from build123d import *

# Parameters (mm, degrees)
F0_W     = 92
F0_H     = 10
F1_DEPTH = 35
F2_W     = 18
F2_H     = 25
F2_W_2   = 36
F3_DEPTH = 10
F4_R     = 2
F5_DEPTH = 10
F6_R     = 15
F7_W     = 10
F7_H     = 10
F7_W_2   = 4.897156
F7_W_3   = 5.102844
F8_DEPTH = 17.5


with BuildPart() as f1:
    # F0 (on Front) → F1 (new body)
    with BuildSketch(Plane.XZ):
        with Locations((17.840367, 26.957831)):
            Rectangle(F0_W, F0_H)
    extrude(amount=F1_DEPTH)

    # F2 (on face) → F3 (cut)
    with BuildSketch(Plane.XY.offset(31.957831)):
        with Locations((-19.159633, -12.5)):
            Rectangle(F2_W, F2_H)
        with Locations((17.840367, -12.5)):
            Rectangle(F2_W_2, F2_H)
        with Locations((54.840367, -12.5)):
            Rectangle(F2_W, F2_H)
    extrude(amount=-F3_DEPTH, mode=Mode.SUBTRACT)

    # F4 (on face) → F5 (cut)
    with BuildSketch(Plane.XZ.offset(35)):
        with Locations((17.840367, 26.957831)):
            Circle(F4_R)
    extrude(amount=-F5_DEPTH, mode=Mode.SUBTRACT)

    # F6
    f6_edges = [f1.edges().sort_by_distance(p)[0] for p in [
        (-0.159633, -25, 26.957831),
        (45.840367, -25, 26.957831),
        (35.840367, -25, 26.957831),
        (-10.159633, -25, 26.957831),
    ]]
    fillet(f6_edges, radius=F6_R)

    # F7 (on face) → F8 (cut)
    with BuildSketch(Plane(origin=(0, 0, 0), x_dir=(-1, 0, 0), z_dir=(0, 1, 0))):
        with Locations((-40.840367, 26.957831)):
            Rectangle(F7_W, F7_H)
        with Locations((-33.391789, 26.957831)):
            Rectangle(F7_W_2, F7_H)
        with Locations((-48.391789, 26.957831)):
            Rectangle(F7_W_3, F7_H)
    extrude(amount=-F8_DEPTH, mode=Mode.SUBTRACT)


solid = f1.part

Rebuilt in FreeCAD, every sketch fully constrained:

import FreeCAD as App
import Part
import Sketcher
Q = App.Units.Quantity


def edges_at(feature, points):
    """Names of the edges that pass closest to the given points."""
    edges = feature.Shape.Edges
    near = lambda p: min(range(len(edges)), key=lambda i: edges[i].distToShape(Part.Vertex(*p))[0])
    return sorted({f"Edge{near(p) + 1}" for p in points})

doc = App.newDocument("Part")
body = doc.addObject("PartDesign::Body", "Body")

sketch1 = body.newObject("Sketcher::SketchObject", "Sketch")
sketch1.AttachmentSupport = (doc.getObject("XZ_Plane"), [""])
sketch1.MapMode = "FlatFace"
sketch1.addGeometry(Part.LineSegment(App.Vector(-28, 32, 0), App.Vector(-28, 22, 0)), False)
sketch1.addGeometry(Part.LineSegment(App.Vector(-28, 22, 0), App.Vector(64, 22, 0)), False)
sketch1.addGeometry(Part.LineSegment(App.Vector(64, 22, 0), App.Vector(64, 32, 0)), False)
sketch1.addGeometry(Part.LineSegment(App.Vector(64, 32, 0), App.Vector(-28, 32, 0)), False)
sketch1.addConstraint(Sketcher.Constraint("Coincident", 0, 2, 1, 1))
sketch1.addConstraint(Sketcher.Constraint("Coincident", 1, 2, 2, 1))
sketch1.addConstraint(Sketcher.Constraint("Coincident", 2, 2, 3, 1))
sketch1.addConstraint(Sketcher.Constraint("Coincident", 3, 2, 0, 1))
sketch1.addConstraint(Sketcher.Constraint("Vertical", 0))
sketch1.addConstraint(Sketcher.Constraint("Horizontal", 1))
sketch1.addConstraint(Sketcher.Constraint("Vertical", 2))
sketch1.addConstraint(Sketcher.Constraint("Horizontal", 3))
sketch1.addConstraint(Sketcher.Constraint("DistanceX", 1, 1, 1, 2, Q("92 mm")))
sketch1.addConstraint(Sketcher.Constraint("DistanceY", 0, 2, 0, 1, Q("10 mm")))
sketch1.addConstraint(Sketcher.Constraint("DistanceY", -1, 1, 0, 2, Q("21.957831 mm")))
sketch1.addConstraint(Sketcher.Constraint("DistanceX", 0, 2, -1, 1, Q("28.159633 mm")))
pad1 = body.newObject("PartDesign::Pad", "Pad")
pad1.Profile = sketch1
pad1.Length = 35

sketch2 = body.newObject("Sketcher::SketchObject", "Sketch001")
sketch2.AttachmentSupport = (doc.getObject("XY_Plane"), [""])
sketch2.MapMode = "FlatFace"
sketch2.AttachmentOffset = App.Placement(App.Vector(0, 0, 31.957831), App.Rotation())
sketch2.addGeometry(Part.LineSegment(App.Vector(-28, 0, 0), App.Vector(-28, -25, 0)), False)
sketch2.addGeometry(Part.LineSegment(App.Vector(-28, -25, 0), App.Vector(-10, -25, 0)), False)
sketch2.addGeometry(Part.LineSegment(App.Vector(-10, -25, 0), App.Vector(-10, 0, 0)), False)
sketch2.addGeometry(Part.LineSegment(App.Vector(-10, 0, 0), App.Vector(-28, 0, 0)), False)
sketch2.addGeometry(Part.LineSegment(App.Vector(0, 0, 0), App.Vector(0, -25, 0)), False)
sketch2.addGeometry(Part.LineSegment(App.Vector(0, -25, 0), App.Vector(36, -25, 0)), False)
sketch2.addGeometry(Part.LineSegment(App.Vector(36, -25, 0), App.Vector(36, 0, 0)), False)
sketch2.addGeometry(Part.LineSegment(App.Vector(36, 0, 0), App.Vector(0, 0, 0)), False)
sketch2.addGeometry(Part.LineSegment(App.Vector(46, 0, 0), App.Vector(46, -25, 0)), False)
sketch2.addGeometry(Part.LineSegment(App.Vector(46, -25, 0), App.Vector(64, -25, 0)), False)
sketch2.addGeometry(Part.LineSegment(App.Vector(64, -25, 0), App.Vector(64, 0, 0)), False)
sketch2.addGeometry(Part.LineSegment(App.Vector(64, 0, 0), App.Vector(46, 0, 0)), False)
sketch2.addConstraint(Sketcher.Constraint("Coincident", 0, 2, 1, 1))
sketch2.addConstraint(Sketcher.Constraint("Coincident", 1, 2, 2, 1))
sketch2.addConstraint(Sketcher.Constraint("Coincident", 2, 2, 3, 1))
sketch2.addConstraint(Sketcher.Constraint("Coincident", 3, 2, 0, 1))
sketch2.addConstraint(Sketcher.Constraint("Coincident", 4, 2, 5, 1))
sketch2.addConstraint(Sketcher.Constraint("Coincident", 5, 2, 6, 1))
sketch2.addConstraint(Sketcher.Constraint("Coincident", 6, 2, 7, 1))
sketch2.addConstraint(Sketcher.Constraint("Coincident", 7, 2, 4, 1))
sketch2.addConstraint(Sketcher.Constraint("Coincident", 8, 2, 9, 1))
sketch2.addConstraint(Sketcher.Constraint("Coincident", 9, 2, 10, 1))
sketch2.addConstraint(Sketcher.Constraint("Coincident", 10, 2, 11, 1))
sketch2.addConstraint(Sketcher.Constraint("Coincident", 11, 2, 8, 1))
sketch2.addConstraint(Sketcher.Constraint("Vertical", 0))
sketch2.addConstraint(Sketcher.Constraint("Horizontal", 1))
sketch2.addConstraint(Sketcher.Constraint("Vertical", 2))
sketch2.addConstraint(Sketcher.Constraint("Horizontal", 3))
sketch2.addConstraint(Sketcher.Constraint("Vertical", 4))
sketch2.addConstraint(Sketcher.Constraint("Horizontal", 5))
sketch2.addConstraint(Sketcher.Constraint("Vertical", 6))
sketch2.addConstraint(Sketcher.Constraint("Horizontal", 7))
sketch2.addConstraint(Sketcher.Constraint("Vertical", 8))
sketch2.addConstraint(Sketcher.Constraint("Horizontal", 9))
sketch2.addConstraint(Sketcher.Constraint("Vertical", 10))
sketch2.addConstraint(Sketcher.Constraint("Horizontal", 11))
sketch2.addConstraint(Sketcher.Constraint("PointOnObject", 2, 2, -1))
sketch2.addConstraint(Sketcher.Constraint("PointOnObject", 6, 2, -1))
sketch2.addConstraint(Sketcher.Constraint("PointOnObject", 10, 2, -1))
sketch2.addConstraint(Sketcher.Constraint("Horizontal", 1, 2, 4, 2))
sketch2.addConstraint(Sketcher.Constraint("Horizontal", 5, 2, 8, 2))
sketch2.addConstraint(Sketcher.Constraint("Equal", 3, 9))
sketch2.addConstraint(Sketcher.Constraint("DistanceX", 1, 1, 1, 2, Q("18 mm")))
sketch2.addConstraint(Sketcher.Constraint("DistanceX", 5, 1, 5, 2, Q("36 mm")))
sketch2.addConstraint(Sketcher.Constraint("DistanceY", 0, 2, 0, 1, Q("25 mm")))
sketch2.addConstraint(Sketcher.Constraint("DistanceX", 1, 2, 4, 2, Q("10 mm")))
sketch2.addConstraint(Sketcher.Constraint("DistanceX", 5, 2, 8, 2, Q("10 mm")))
sketch2.addConstraint(Sketcher.Constraint("DistanceX", 0, 2, -1, 1, Q("28.159633 mm")))
pocket1 = body.newObject("PartDesign::Pocket", "Pocket")
pocket1.Profile = sketch2
pocket1.Length = 10

sketch3 = body.newObject("Sketcher::SketchObject", "Sketch002")
sketch3.AttachmentSupport = (doc.getObject("XZ_Plane"), [""])
sketch3.MapMode = "FlatFace"
sketch3.AttachmentOffset = App.Placement(App.Vector(0, 0, 35), App.Rotation())
sketch3.addGeometry(Part.Circle(App.Vector(17.8, 27, 0), App.Vector(0, 0, 1), 2), False)
sketch3.addConstraint(Sketcher.Constraint("Diameter", 0, Q("4 mm")))
sketch3.addConstraint(Sketcher.Constraint("DistanceY", -1, 1, 0, 3, Q("26.957831 mm")))
sketch3.addConstraint(Sketcher.Constraint("DistanceX", -1, 1, 0, 3, Q("17.840367 mm")))
pocket2 = body.newObject("PartDesign::Pocket", "Pocket001")
pocket2.Profile = sketch3
pocket2.Length = 10
doc.recompute()

fillet = body.newObject("PartDesign::Fillet", "Fillet")
fillet.Base = (pocket2, edges_at(pocket2, [
    (-0.16, -25, 26.958),
    (45.84, -25, 26.958),
    (35.84, -25, 26.958),
    (-10.16, -25, 26.958),
]))
fillet.Radius = 15

sketch4 = body.newObject("Sketcher::SketchObject", "Sketch003")
sketch4.AttachmentSupport = (doc.getObject("XZ_Plane"), [""])
sketch4.MapMode = "FlatFace"
sketch4.addGeometry(Part.LineSegment(App.Vector(31, 22, 0), App.Vector(31, 32, 0)), False)
sketch4.addGeometry(Part.LineSegment(App.Vector(31, 32, 0), App.Vector(51, 32, 0)), False)
sketch4.addGeometry(Part.LineSegment(App.Vector(51, 32, 0), App.Vector(51, 22, 0)), False)
sketch4.addGeometry(Part.LineSegment(App.Vector(51, 22, 0), App.Vector(31, 22, 0)), False)
sketch4.addConstraint(Sketcher.Constraint("Coincident", 0, 2, 1, 1))
sketch4.addConstraint(Sketcher.Constraint("Coincident", 1, 2, 2, 1))
sketch4.addConstraint(Sketcher.Constraint("Coincident", 2, 2, 3, 1))
sketch4.addConstraint(Sketcher.Constraint("Coincident", 3, 2, 0, 1))
sketch4.addConstraint(Sketcher.Constraint("Vertical", 0))
sketch4.addConstraint(Sketcher.Constraint("Horizontal", 1))
sketch4.addConstraint(Sketcher.Constraint("Vertical", 2))
sketch4.addConstraint(Sketcher.Constraint("Horizontal", 3))
sketch4.addConstraint(Sketcher.Constraint("DistanceX", 1, 1, 1, 2, Q("20 mm")))
sketch4.addConstraint(Sketcher.Constraint("DistanceY", 0, 1, 0, 2, Q("10 mm")))
sketch4.addConstraint(Sketcher.Constraint("DistanceX", -1, 1, 0, 2, Q("30.943211 mm")))
sketch4.addConstraint(Sketcher.Constraint("DistanceY", -1, 1, 0, 2, Q("31.957831 mm")))
pocket3 = body.newObject("PartDesign::Pocket", "Pocket002")
pocket3.Profile = sketch4
pocket3.Length = 17.5
pocket3.Reversed = True

doc.recompute()
